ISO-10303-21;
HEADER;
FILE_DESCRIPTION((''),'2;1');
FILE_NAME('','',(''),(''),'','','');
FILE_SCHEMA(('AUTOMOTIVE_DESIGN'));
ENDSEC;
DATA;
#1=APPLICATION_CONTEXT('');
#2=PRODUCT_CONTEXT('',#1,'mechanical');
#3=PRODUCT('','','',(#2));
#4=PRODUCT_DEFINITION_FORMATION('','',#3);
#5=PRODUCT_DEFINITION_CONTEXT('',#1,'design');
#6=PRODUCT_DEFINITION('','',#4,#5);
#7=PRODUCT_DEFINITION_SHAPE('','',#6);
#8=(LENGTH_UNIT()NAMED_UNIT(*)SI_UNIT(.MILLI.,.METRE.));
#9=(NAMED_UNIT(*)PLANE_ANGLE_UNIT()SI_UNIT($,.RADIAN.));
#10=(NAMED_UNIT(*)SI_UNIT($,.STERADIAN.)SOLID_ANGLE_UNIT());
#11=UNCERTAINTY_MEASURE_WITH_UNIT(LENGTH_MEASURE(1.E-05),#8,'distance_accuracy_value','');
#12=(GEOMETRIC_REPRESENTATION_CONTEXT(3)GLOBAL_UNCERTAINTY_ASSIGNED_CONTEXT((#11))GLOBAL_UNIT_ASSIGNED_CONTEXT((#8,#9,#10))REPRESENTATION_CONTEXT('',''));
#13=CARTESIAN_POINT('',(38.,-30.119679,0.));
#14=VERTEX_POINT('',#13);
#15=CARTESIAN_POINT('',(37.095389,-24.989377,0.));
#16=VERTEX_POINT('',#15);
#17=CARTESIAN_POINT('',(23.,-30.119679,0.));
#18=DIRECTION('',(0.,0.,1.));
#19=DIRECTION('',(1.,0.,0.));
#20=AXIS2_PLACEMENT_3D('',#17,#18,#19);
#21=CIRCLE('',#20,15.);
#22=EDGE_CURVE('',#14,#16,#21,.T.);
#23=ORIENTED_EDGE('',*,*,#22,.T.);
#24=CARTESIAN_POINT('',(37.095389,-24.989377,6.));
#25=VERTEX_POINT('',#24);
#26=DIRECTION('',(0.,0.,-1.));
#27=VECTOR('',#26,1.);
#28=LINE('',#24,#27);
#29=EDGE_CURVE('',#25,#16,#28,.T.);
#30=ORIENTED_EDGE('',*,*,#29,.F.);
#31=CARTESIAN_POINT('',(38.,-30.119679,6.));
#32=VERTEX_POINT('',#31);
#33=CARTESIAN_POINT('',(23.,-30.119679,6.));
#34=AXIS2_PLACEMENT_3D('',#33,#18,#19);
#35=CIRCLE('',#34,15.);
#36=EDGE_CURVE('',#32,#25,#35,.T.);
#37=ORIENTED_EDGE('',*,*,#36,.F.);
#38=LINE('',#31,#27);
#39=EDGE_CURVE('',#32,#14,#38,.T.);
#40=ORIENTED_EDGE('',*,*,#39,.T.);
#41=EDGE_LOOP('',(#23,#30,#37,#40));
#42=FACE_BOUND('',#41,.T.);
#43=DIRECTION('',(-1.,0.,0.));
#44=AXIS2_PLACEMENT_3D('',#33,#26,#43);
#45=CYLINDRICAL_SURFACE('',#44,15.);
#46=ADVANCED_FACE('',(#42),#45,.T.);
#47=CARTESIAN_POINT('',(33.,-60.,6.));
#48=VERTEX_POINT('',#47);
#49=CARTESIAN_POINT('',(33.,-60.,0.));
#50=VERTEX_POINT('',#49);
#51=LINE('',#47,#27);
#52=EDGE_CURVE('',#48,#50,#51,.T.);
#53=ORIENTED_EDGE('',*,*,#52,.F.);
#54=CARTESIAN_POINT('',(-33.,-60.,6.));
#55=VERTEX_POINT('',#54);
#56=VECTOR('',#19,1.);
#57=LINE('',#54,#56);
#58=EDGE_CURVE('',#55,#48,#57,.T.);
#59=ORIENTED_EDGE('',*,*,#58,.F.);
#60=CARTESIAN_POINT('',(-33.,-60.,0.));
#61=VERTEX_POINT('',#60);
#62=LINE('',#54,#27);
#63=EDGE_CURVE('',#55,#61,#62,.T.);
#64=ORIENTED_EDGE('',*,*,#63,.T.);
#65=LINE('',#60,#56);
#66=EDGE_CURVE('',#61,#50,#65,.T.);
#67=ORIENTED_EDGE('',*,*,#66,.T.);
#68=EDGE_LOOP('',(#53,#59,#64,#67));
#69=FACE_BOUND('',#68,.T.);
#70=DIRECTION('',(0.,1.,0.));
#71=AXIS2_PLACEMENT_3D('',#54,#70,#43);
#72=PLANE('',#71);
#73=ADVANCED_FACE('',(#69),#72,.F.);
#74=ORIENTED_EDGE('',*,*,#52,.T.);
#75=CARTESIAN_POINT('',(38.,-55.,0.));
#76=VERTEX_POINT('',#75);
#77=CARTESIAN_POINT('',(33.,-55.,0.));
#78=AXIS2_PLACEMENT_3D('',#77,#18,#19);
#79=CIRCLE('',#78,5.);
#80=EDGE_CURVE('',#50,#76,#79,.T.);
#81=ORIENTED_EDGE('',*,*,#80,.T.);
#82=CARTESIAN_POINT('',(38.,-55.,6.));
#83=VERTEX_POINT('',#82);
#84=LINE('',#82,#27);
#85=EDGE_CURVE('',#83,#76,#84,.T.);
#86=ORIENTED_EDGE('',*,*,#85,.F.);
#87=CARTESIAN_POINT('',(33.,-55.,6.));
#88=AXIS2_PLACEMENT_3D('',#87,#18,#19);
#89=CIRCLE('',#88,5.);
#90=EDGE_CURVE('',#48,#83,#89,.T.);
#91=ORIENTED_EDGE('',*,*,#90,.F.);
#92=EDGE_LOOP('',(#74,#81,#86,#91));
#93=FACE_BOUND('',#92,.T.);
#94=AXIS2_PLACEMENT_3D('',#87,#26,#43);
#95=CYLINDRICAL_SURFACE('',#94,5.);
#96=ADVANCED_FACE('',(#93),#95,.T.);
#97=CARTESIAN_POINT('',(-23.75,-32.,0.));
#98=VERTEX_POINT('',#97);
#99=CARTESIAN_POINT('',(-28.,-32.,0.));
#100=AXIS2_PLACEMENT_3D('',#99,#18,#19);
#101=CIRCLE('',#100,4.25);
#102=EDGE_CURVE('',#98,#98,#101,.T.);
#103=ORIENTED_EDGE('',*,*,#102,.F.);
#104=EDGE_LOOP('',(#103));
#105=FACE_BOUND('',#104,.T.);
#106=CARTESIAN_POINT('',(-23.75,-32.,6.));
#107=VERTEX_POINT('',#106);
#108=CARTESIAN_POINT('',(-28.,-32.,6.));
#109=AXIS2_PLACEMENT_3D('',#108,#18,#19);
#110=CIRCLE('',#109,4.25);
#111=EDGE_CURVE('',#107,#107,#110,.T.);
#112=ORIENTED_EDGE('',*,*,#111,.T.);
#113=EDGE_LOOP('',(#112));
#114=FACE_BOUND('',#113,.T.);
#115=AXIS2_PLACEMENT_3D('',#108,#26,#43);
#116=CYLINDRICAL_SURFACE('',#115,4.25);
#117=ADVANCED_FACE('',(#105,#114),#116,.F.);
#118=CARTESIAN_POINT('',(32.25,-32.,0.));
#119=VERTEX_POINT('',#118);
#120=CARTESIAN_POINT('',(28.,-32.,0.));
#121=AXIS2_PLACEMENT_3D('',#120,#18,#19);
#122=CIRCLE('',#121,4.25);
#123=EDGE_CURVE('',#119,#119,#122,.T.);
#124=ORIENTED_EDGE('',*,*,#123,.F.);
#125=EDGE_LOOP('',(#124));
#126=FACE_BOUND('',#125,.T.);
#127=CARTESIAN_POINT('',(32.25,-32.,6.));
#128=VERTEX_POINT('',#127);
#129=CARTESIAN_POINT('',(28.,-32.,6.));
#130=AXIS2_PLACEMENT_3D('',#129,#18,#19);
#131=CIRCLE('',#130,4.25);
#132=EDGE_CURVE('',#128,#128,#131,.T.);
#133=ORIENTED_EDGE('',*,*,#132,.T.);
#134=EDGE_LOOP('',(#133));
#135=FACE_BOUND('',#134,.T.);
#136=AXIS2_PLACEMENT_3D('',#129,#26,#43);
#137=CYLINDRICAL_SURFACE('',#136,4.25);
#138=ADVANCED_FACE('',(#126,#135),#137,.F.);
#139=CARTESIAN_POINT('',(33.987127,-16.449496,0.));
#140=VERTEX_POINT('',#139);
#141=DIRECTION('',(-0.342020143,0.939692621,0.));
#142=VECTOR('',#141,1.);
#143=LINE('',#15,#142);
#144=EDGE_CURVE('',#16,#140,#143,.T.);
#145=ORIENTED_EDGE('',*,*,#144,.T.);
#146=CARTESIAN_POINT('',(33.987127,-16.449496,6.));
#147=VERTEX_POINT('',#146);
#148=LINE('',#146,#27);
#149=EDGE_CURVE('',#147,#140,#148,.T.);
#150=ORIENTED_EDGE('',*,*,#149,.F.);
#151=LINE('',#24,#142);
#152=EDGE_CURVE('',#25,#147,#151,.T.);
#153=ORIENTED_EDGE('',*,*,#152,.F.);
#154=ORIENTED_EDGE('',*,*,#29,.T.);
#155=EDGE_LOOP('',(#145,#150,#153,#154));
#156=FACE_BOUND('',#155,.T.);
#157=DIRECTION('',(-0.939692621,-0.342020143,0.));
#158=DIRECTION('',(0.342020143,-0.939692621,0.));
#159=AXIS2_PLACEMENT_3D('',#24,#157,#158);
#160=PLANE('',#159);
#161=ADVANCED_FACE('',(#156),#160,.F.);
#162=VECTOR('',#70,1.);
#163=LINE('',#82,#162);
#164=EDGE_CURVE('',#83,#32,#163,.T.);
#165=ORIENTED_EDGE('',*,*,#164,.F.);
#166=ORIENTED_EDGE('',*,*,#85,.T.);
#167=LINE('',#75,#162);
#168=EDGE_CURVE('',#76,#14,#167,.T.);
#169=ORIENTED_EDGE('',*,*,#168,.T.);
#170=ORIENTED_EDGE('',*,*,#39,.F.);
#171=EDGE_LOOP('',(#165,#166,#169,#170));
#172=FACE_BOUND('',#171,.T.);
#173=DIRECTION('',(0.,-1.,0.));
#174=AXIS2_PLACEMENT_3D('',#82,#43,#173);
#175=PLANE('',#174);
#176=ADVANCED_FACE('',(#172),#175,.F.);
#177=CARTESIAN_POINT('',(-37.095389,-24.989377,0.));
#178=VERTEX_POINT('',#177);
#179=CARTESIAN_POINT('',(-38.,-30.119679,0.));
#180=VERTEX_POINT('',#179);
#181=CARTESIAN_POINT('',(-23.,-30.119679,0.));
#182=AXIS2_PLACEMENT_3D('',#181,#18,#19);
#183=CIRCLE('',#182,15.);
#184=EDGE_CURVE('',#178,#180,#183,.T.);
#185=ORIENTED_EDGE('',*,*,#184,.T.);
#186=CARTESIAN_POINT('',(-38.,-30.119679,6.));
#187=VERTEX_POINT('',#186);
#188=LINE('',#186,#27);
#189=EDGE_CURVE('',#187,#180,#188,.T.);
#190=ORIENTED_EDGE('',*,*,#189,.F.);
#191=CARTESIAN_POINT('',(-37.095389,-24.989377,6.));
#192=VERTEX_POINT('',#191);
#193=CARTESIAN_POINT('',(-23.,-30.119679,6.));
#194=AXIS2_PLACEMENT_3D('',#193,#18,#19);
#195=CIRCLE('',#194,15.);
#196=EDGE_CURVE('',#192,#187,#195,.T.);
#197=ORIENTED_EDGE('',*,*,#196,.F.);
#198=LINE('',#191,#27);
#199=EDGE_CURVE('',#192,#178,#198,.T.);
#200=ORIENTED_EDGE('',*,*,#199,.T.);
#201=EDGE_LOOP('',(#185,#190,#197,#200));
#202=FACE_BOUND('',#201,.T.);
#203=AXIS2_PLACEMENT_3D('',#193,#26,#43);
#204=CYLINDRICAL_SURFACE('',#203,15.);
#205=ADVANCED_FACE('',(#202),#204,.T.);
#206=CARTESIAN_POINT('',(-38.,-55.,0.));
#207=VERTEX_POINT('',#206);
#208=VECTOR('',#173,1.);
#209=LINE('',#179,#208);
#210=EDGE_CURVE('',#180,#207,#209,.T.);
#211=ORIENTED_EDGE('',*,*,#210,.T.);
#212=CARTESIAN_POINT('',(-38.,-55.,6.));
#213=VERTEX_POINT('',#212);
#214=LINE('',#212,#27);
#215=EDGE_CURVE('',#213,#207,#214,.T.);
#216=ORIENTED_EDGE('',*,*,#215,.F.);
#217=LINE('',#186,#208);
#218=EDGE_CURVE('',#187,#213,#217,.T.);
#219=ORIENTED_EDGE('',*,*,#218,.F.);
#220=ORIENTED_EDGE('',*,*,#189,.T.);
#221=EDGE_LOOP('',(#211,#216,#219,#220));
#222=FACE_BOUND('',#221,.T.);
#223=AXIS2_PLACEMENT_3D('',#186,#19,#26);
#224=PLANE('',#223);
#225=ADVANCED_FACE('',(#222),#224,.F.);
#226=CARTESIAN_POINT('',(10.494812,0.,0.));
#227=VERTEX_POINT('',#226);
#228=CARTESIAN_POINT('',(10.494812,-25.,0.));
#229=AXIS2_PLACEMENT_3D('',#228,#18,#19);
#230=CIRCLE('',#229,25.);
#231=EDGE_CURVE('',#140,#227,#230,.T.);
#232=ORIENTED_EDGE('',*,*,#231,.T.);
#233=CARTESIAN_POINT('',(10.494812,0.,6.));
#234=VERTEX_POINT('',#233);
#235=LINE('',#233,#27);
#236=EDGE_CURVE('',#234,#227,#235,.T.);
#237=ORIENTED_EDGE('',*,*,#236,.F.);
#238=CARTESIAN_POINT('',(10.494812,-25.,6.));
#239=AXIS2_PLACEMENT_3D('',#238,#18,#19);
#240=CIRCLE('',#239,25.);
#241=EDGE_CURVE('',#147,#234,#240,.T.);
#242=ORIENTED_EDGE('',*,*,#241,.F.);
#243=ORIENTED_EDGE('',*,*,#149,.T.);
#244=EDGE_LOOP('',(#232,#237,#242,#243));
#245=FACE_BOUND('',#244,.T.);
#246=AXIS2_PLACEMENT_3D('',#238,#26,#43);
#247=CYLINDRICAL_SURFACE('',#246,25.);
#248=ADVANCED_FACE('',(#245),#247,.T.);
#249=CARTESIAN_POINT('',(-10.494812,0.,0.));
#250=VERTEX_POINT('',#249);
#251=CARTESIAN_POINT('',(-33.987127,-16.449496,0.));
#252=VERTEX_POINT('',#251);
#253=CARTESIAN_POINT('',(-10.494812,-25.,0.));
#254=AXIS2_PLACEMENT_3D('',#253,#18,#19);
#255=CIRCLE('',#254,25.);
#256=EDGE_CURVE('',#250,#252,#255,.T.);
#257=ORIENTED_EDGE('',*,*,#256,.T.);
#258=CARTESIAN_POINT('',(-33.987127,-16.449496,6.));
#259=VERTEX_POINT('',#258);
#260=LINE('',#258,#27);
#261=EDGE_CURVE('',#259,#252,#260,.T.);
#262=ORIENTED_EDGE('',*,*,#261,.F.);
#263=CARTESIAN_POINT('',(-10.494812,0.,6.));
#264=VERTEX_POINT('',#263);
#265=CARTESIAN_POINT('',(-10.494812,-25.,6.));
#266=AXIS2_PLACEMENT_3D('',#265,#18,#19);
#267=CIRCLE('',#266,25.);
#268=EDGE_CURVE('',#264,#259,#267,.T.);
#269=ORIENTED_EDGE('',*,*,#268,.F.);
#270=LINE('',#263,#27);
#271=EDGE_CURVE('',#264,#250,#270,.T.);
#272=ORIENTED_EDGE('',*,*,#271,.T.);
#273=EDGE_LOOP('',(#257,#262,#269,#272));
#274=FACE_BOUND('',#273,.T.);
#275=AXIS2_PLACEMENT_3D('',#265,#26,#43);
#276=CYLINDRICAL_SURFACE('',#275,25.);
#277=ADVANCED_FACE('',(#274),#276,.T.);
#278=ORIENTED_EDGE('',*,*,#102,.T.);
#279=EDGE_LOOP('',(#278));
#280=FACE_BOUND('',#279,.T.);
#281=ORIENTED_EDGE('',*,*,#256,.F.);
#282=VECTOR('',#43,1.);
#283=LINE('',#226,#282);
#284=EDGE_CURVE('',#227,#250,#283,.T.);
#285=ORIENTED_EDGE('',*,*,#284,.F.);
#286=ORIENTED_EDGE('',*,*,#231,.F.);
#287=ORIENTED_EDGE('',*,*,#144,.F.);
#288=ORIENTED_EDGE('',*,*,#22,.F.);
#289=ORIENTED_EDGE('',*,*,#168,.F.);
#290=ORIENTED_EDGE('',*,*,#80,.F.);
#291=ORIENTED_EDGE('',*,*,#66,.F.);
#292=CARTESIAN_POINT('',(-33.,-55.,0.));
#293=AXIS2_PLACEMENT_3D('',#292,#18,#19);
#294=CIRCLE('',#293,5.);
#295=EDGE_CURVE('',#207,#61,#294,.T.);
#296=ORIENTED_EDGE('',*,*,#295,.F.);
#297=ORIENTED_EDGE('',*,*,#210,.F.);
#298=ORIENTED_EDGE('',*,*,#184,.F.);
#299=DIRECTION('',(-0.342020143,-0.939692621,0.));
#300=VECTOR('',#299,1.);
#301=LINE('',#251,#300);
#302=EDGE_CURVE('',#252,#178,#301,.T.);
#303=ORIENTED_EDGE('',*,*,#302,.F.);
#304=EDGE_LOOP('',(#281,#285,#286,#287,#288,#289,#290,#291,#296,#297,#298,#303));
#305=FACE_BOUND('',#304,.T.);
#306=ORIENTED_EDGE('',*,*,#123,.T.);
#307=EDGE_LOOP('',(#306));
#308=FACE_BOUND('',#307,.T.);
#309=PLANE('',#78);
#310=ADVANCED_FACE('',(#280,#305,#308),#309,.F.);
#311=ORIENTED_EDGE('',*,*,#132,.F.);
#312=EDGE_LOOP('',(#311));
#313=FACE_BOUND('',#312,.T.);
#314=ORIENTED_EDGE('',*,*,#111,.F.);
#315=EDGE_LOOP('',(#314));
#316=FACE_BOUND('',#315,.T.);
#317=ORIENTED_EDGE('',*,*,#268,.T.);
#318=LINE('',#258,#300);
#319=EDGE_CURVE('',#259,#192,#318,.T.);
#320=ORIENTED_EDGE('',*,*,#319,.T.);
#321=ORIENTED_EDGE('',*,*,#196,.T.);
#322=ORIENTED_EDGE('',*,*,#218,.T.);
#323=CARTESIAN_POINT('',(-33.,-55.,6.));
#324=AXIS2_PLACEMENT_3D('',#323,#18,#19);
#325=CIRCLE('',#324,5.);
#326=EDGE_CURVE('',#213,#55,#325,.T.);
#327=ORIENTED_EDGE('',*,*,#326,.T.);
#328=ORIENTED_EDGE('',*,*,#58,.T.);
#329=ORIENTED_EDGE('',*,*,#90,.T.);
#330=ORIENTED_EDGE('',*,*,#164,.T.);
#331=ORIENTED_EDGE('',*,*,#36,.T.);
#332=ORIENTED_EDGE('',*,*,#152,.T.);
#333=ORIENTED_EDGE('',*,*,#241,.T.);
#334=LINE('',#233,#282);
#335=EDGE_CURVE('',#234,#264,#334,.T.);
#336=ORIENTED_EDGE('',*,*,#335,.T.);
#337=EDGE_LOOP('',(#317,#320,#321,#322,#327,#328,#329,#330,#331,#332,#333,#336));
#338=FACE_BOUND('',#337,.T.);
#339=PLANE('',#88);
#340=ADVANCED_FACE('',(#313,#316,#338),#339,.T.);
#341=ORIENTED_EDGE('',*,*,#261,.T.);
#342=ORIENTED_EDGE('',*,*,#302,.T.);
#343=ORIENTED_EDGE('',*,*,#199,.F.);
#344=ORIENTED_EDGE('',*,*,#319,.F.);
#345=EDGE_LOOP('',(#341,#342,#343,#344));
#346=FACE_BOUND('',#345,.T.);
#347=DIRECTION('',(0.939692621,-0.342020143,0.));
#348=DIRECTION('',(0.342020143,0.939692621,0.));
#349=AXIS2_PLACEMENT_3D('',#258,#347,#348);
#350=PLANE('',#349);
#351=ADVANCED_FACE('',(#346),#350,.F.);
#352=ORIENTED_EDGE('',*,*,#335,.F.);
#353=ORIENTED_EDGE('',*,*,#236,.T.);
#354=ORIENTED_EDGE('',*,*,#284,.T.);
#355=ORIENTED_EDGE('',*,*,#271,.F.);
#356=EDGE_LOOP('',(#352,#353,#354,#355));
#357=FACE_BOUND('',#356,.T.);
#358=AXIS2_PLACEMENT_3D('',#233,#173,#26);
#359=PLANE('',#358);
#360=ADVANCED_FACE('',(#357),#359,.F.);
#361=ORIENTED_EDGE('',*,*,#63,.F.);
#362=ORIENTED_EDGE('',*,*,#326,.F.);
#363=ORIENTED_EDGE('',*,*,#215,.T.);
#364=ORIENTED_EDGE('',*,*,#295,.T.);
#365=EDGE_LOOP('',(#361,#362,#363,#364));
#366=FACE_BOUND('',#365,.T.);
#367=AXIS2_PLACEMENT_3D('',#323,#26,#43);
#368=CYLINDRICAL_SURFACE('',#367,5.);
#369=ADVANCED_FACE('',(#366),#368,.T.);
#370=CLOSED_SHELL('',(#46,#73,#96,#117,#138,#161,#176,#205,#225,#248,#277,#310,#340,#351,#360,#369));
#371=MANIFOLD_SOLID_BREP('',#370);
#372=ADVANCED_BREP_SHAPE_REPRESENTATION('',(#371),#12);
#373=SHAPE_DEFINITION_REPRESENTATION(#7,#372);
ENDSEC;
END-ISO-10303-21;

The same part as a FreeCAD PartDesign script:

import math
import FreeCAD as App
import Part
import Sketcher
Q = App.Units.Quantity

doc = App.newDocument("Part")
params = doc.addObject("Spreadsheet::Sheet", "Params")
for row, (alias, value) in enumerate([
    ("sketch1_radius", "15 mm"),
    ("sketch1_radius2", "25 mm"),
    ("sketch1_radius3", "5 mm"),
    ("sketch1_diameter", "8.5 mm"),
    ("sketch1_width", "66 mm"),
    ("pad1_length", "6 mm"),
], start=1):
    params.set(f"A{row}", alias)
    params.set(f"B{row}", "=" + value)
    params.setAlias(f"B{row}", alias)

body = doc.addObject("PartDesign::Body", "Body")

# Sketch on XY plane
sketch1 = doc.addObject("Sketcher::SketchObject", "Sketch")
body.addObject(sketch1)
sketch1.AttachmentSupport = (doc.XY_Plane, [""])
sketch1.MapMode = "FlatFace"
sketch1.addGeometry([
    Part.LineSegment(App.Vector(38, -55, 0), App.Vector(38, -30.119679, 0)),  # 0
    Part.ArcOfCircle(Part.Circle(App.Vector(23, -30.119679, 0), App.Vector(0, 0, 1), 15), math.radians(0), math.radians(20)),  # 1
    Part.LineSegment(App.Vector(37.095389, -24.989377, 0), App.Vector(33.987127, -16.449496, 0)),  # 2
    Part.ArcOfCircle(Part.Circle(App.Vector(10.494812, -25, 0), App.Vector(0, 0, 1), 25), math.radians(20), math.radians(90)),  # 3
    Part.LineSegment(App.Vector(10.494812, 0, 0), App.Vector(-10.494812, 0, 0)),  # 4
    Part.ArcOfCircle(Part.Circle(App.Vector(-10.494812, -25, 0), App.Vector(0, 0, 1), 25), math.radians(90), math.radians(160)),  # 5
    Part.LineSegment(App.Vector(-33.987127, -16.449496, 0), App.Vector(-37.095389, -24.989377, 0)),  # 6
    Part.ArcOfCircle(Part.Circle(App.Vector(-23, -30.119679, 0), App.Vector(0, 0, 1), 15), math.radians(160), math.radians(180)),  # 7
    Part.LineSegment(App.Vector(-38, -30.119679, 0), App.Vector(-38, -55, 0)),  # 8
    Part.ArcOfCircle(Part.Circle(App.Vector(-33, -55, 0), App.Vector(0, 0, 1), 5), math.radians(180), math.radians(270)),  # 9
    Part.LineSegment(App.Vector(-33, -60, 0), App.Vector(33, -60, 0)),  # 10
    Part.ArcOfCircle(Part.Circle(App.Vector(33, -55, 0), App.Vector(0, 0, 1), 5), math.radians(-90), math.radians(0)),  # 11
    Part.Circle(App.Vector(-28, -32, 0), App.Vector(0, 0, 1), 4.25),  # 12
    Part.Circle(App.Vector(28, -32, 0), App.Vector(0, 0, 1), 4.25),  # 13
], False)
sketch1.addConstraint([
    Sketcher.Constraint("Tangent", 0, 2, 1, 1),
    Sketcher.Constraint("Tangent", 1, 2, 2, 1),
    Sketcher.Constraint("Tangent", 2, 2, 3, 1),
    Sketcher.Constraint("Tangent", 3, 2, 4, 1),
    Sketcher.Constraint("Tangent", 4, 2, 5, 1),
    Sketcher.Constraint("Tangent", 5, 2, 6, 1),
    Sketcher.Constraint("Tangent", 6, 2, 7, 1),
    Sketcher.Constraint("Tangent", 7, 2, 8, 1),
    Sketcher.Constraint("Tangent", 8, 2, 9, 1),
    Sketcher.Constraint("Tangent", 9, 2, 10, 1),
    Sketcher.Constraint("Tangent", 10, 2, 11, 1),
    Sketcher.Constraint("Tangent", 11, 2, 0, 1),
    Sketcher.Constraint("Vertical", 0),
    Sketcher.Constraint("Horizontal", 4),
    Sketcher.Constraint("Vertical", 8),
    Sketcher.Constraint("Horizontal", 10),
    Sketcher.Constraint("Equal", 3, 5),
    Sketcher.Constraint("Equal", 1, 7),
    Sketcher.Constraint("Equal", 9, 11),
    Sketcher.Constraint("Equal", 12, 13),
    Sketcher.Constraint("Symmetric", 3, 2, 4, 2, -1, 1),
    Sketcher.Constraint("Symmetric", 1, 3, 7, 3, -2),
    Sketcher.Constraint("Symmetric", 12, 3, 13, 3, -2),
    Sketcher.Constraint("Radius", 1, Q("15 mm")),
    Sketcher.Constraint("Radius", 3, Q("25 mm")),
    Sketcher.Constraint("Radius", 9, Q("5 mm")),
    Sketcher.Constraint("Diameter", 12, Q("8.5 mm")),
    Sketcher.Constraint("DistanceX", 10, 1, 10, 2, Q("66 mm")),
    Sketcher.Constraint("Angle", 2, Q("110 deg")),
    Sketcher.Constraint("DistanceY", 9, 3, -1, 1, Q("55 mm")),
    Sketcher.Constraint("DistanceX", 12, 3, -1, 1, Q("28 mm")),
    Sketcher.Constraint("DistanceY", 12, 3, -1, 1, Q("32 mm")),
    Sketcher.Constraint("DistanceY", 0, 1, 0, 2, Q("24.880321 mm")),
])
sketch1.setExpression("Constraints[23]", "Params.sketch1_radius")
sketch1.setExpression("Constraints[24]", "Params.sketch1_radius2")
sketch1.setExpression("Constraints[25]", "Params.sketch1_radius3")
sketch1.setExpression("Constraints[26]", "Params.sketch1_diameter")
sketch1.setExpression("Constraints[27]", "Params.sketch1_width")
pad1 = doc.addObject("PartDesign::Pad", "Pad")
body.addObject(pad1)
pad1.Profile = sketch1
pad1.setExpression("Length", "Params.pad1_length")

doc.recompute()
